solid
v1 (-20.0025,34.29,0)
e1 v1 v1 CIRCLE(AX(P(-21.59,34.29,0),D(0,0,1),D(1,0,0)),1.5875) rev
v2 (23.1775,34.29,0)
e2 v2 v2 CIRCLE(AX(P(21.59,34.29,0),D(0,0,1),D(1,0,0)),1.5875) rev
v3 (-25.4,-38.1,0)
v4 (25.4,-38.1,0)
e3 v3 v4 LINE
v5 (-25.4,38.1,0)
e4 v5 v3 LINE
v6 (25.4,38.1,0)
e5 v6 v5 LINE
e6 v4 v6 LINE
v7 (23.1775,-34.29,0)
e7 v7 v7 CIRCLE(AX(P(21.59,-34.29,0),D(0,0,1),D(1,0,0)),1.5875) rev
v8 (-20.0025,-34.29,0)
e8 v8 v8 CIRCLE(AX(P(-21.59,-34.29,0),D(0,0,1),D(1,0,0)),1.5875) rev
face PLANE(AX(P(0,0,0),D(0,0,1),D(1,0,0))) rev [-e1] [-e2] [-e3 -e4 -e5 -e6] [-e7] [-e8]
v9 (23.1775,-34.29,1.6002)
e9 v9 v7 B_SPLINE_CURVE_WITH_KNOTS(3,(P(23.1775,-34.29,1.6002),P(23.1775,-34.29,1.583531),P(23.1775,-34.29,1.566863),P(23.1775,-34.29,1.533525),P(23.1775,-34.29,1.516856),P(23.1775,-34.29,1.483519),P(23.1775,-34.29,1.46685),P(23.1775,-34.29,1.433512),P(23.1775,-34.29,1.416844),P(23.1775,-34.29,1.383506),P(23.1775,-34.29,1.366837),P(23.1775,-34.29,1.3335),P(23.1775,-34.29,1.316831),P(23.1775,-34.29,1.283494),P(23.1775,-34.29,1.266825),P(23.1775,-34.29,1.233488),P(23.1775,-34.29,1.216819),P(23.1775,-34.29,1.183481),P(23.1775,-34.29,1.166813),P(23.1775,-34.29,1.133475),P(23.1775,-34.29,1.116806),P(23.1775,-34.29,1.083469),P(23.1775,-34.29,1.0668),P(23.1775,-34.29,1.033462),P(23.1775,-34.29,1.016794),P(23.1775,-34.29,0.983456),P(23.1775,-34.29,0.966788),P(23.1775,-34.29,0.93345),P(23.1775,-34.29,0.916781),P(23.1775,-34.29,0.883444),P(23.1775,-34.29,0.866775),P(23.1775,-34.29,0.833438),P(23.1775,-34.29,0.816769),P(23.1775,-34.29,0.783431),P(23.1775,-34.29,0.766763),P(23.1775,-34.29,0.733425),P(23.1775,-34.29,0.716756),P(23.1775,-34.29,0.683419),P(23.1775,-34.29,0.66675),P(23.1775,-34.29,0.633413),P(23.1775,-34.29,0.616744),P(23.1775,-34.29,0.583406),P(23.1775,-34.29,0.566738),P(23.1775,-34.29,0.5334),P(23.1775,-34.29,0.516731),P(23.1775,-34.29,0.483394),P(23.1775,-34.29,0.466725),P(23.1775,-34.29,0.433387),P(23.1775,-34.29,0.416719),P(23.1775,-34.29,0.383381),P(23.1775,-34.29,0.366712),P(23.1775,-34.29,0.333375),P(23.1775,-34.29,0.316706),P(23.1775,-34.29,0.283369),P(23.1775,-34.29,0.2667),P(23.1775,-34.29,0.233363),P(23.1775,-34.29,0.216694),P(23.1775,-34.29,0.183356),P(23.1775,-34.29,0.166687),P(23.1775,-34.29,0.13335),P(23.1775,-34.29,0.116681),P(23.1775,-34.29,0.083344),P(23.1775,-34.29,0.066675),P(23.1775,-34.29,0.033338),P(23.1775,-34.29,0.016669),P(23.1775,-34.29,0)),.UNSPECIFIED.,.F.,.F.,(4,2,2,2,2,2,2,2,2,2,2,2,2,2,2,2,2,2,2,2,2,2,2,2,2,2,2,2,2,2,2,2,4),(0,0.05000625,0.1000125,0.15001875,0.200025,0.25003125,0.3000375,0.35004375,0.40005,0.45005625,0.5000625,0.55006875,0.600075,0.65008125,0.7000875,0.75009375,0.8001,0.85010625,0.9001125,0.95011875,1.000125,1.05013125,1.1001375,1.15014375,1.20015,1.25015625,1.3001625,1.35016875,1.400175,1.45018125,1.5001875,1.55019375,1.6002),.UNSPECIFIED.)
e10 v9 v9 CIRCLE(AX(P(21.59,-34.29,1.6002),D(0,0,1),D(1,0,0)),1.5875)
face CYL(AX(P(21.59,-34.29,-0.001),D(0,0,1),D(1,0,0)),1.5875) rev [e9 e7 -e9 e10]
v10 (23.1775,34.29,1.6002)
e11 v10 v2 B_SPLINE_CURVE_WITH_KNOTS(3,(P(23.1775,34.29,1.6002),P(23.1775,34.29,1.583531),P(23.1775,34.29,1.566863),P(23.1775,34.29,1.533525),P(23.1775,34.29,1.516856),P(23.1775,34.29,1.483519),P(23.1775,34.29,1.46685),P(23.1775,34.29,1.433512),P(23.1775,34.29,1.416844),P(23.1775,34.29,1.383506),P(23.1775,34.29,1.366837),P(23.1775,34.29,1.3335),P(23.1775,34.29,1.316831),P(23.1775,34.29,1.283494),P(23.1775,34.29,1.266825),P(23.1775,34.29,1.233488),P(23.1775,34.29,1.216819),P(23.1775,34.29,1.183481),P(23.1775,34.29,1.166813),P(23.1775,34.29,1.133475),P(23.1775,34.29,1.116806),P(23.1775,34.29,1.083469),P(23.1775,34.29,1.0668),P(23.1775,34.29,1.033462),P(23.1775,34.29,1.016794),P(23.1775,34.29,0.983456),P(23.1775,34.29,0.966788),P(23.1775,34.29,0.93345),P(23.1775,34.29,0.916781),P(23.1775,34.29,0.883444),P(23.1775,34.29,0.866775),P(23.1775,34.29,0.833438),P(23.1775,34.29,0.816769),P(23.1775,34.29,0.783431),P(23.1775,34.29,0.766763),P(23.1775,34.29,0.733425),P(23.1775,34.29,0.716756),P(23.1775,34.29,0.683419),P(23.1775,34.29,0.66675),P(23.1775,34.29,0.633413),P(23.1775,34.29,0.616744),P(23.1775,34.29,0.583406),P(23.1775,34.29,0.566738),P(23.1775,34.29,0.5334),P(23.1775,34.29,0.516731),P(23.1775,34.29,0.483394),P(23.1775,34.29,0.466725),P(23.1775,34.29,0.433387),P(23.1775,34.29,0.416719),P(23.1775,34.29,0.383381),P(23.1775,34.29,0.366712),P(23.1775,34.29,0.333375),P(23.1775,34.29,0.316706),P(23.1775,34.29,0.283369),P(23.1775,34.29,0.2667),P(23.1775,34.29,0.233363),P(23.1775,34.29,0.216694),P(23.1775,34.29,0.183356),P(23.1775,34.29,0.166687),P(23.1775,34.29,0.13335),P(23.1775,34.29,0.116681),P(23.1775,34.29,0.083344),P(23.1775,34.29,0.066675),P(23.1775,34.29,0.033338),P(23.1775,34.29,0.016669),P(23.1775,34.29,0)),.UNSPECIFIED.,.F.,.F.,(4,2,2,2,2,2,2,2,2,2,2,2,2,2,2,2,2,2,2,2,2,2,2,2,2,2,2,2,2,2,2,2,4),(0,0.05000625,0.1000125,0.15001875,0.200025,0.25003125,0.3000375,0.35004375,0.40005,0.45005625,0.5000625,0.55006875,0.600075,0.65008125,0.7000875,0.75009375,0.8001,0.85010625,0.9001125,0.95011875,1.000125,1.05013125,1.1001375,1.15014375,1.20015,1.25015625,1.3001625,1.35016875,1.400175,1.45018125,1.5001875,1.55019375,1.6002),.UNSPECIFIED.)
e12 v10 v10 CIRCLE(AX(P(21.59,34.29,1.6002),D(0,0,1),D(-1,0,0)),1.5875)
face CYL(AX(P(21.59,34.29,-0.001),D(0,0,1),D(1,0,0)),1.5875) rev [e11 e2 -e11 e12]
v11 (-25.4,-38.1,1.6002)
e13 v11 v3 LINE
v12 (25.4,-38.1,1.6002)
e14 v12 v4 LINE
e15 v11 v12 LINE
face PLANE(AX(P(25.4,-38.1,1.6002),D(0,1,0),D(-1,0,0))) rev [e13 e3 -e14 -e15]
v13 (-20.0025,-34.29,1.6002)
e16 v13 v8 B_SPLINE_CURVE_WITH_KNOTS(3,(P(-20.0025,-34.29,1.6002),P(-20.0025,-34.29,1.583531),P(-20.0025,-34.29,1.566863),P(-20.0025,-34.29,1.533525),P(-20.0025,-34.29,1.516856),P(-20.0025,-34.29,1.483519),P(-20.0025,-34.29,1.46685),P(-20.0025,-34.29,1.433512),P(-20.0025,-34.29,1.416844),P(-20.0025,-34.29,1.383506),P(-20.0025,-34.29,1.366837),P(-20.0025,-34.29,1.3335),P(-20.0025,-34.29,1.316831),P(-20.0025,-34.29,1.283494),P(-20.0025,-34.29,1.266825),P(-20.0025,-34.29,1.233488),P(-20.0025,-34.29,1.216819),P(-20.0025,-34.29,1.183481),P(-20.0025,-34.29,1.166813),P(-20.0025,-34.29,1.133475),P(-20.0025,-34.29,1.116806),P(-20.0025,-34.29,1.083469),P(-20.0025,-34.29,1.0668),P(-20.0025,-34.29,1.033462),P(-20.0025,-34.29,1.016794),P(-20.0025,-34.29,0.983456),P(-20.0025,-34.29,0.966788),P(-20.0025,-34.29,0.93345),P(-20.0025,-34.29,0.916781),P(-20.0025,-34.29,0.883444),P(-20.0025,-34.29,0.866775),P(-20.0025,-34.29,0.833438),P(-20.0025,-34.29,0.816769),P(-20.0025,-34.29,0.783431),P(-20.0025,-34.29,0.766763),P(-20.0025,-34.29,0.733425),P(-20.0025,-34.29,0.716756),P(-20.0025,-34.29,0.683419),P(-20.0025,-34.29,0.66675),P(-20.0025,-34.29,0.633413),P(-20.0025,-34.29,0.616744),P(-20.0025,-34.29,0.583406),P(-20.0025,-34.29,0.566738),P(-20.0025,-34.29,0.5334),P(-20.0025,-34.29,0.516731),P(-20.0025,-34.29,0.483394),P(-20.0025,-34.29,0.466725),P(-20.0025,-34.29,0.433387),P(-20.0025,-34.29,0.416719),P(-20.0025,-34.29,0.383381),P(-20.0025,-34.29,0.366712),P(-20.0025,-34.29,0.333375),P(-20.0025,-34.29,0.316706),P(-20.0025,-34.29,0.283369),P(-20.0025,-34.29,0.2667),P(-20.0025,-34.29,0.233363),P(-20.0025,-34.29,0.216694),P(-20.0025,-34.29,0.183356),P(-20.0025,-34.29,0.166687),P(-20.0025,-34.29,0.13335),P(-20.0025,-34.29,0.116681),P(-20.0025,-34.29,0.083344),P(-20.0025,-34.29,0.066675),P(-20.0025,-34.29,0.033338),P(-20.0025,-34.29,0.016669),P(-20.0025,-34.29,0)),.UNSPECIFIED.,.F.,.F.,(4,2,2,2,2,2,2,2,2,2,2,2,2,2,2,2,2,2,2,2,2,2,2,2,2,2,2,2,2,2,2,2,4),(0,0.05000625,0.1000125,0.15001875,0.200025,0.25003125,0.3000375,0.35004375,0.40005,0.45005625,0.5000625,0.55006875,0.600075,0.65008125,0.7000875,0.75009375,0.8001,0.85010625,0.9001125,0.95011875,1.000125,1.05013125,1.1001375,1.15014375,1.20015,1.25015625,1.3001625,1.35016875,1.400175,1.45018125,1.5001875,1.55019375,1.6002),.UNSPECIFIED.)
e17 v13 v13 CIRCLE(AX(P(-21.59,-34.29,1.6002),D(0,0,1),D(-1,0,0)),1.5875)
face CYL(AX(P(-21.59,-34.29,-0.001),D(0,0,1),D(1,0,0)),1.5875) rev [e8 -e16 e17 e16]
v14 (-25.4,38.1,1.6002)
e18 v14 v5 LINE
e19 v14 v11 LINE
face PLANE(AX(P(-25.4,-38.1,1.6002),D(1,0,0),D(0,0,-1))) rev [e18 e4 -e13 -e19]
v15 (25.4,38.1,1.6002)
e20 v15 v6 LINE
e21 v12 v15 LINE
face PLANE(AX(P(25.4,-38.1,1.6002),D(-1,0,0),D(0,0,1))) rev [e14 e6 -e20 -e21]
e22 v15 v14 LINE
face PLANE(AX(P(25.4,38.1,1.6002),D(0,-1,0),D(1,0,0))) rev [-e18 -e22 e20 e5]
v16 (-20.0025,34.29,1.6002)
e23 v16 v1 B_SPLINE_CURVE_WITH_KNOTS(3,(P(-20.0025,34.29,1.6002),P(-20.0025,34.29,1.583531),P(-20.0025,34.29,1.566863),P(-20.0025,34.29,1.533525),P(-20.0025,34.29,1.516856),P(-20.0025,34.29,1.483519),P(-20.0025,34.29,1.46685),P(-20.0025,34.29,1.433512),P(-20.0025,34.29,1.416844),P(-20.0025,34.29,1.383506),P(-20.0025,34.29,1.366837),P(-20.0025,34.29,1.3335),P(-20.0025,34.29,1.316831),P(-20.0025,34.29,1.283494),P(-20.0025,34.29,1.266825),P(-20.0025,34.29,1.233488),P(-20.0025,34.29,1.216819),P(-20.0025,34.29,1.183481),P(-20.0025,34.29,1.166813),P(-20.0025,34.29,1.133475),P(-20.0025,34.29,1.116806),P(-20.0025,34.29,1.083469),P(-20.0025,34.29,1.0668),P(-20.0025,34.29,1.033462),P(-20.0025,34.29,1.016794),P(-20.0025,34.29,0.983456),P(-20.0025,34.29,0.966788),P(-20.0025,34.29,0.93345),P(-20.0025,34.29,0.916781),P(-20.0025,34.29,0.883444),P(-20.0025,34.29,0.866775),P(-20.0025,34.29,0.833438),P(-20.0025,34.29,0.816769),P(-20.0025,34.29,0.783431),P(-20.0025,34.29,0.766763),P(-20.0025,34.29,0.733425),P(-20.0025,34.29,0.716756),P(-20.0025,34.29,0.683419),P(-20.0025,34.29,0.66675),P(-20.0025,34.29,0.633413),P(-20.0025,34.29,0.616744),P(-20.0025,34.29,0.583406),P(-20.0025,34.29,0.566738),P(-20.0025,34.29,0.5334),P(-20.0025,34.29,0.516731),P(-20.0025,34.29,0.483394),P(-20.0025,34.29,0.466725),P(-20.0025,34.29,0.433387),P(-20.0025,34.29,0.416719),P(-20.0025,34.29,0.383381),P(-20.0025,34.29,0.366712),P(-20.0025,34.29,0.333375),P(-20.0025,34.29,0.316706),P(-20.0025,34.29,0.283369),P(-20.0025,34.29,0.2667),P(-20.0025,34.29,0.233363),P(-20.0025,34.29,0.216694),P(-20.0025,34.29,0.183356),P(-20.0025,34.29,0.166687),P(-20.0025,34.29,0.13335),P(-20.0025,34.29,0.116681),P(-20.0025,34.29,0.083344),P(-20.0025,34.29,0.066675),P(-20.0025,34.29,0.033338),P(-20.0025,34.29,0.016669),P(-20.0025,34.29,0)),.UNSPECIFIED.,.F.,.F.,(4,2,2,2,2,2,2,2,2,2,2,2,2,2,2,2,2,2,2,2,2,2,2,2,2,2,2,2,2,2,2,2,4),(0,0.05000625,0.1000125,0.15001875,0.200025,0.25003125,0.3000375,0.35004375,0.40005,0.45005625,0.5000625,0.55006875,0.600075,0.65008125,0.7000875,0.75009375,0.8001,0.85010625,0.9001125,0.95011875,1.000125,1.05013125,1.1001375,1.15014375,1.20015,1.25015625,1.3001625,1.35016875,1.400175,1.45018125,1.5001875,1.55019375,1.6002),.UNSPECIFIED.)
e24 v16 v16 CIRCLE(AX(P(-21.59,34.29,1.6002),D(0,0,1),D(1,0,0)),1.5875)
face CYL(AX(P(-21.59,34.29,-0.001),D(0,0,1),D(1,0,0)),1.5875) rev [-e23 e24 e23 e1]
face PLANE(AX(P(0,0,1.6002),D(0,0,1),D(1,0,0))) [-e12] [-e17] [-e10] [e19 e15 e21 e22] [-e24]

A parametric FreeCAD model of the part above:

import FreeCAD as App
import Part
import Sketcher
from FreeCAD import Vector
Q = App.Units.Quantity


def add_polygon(sketch, points):
    """Adds a closed chain of lines whose ends are joined by coincident constraints."""
    first, n = sketch.GeometryCount, len(points)
    for a, b in zip(points, points[1:] + points[:1]):
        sketch.addGeometry(Part.LineSegment(App.Vector(*a, 0), App.Vector(*b, 0)), False)
    for i in range(n):
        sketch.addConstraint(Sketcher.Constraint("Coincident", first + i, 2, first + (i + 1) % n, 1))

doc = App.newDocument("Part")
body = doc.addObject("PartDesign::Body", "Body")

sketch1 = body.newObject("Sketcher::SketchObject", "Sketch")
sketch1.AttachmentSupport = (doc.getObject("XY_Plane"), [""])
sketch1.MapMode = "FlatFace"
add_polygon(sketch1, [(-25.4, 38.1), (-25.4, -38.1), (25.4, -38.1), (25.4, 38.1)])
sketch1.addConstraint(Sketcher.Constraint("Vertical", 0))
sketch1.addConstraint(Sketcher.Constraint("Horizontal", 1))
sketch1.addConstraint(Sketcher.Constraint("Vertical", 2))
sketch1.addConstraint(Sketcher.Constraint("Horizontal", 3))
sketch1.addConstraint(Sketcher.Constraint("Symmetric", 0, 2, 2, 2, -1, 1))
sketch1.addConstraint(Sketcher.Constraint("DistanceX", 1, 1, 1, 2, Q("2 in")))
sketch1.addConstraint(Sketcher.Constraint("DistanceY", 0, 2, 0, 1, Q("3 in")))
pad1 = body.newObject("PartDesign::Pad", "Pad")
pad1.Profile = sketch1
pad1.Length = Q("0.063 in")

sketch2 = body.newObject("Sketcher::SketchObject", "Sketch001")
sketch2.AttachmentSupport = (doc.getObject("XY_Plane"), [""])
sketch2.MapMode = "FlatFace"
sketch2.AttachmentOffset = App.Placement(Vector(0, 0, 0.063 * 25.4), App.Rotation())
sketch2.addGeometry(Part.Circle(Vector(-21.59, 34.29, 0), Vector(0, 0, 1), 1.5875), False)
sketch2.addConstraint(Sketcher.Constraint("Diameter", 0, Q("0.125 in")))
sketch2.addConstraint(Sketcher.Constraint("DistanceX", 0, 3, -1, 1, Q("0.85 in")))
sketch2.addConstraint(Sketcher.Constraint("DistanceY", -1, 1, 0, 3, Q("1.35 in")))
pocket1 = body.newObject("PartDesign::Pocket", "Pocket")
pocket1.Profile = sketch2
pocket1.Type = "UpToFirst"

sketch3 = body.newObject("Sketcher::SketchObject", "Sketch002")
sketch3.AttachmentSupport = (doc.getObject("XY_Plane"), [""])
sketch3.MapMode = "FlatFace"
sketch3.AttachmentOffset = App.Placement(Vector(0, 0, 0.063 * 25.4), App.Rotation())
sketch3.addGeometry(Part.Circle(Vector(21.59, 34.29, 0), Vector(0, 0, 1), 1.5875), False)
sketch3.addConstraint(Sketcher.Constraint("Diameter", 0, Q("0.125 in")))
sketch3.addConstraint(Sketcher.Constraint("DistanceX", -1, 1, 0, 3, Q("0.85 in")))
sketch3.addConstraint(Sketcher.Constraint("DistanceY", -1, 1, 0, 3, Q("1.35 in")))
pocket2 = body.newObject("PartDesign::Pocket", "Pocket001")
pocket2.Profile = sketch3
pocket2.Type = "UpToFirst"

sketch4 = body.newObject("Sketcher::SketchObject", "Sketch003")
sketch4.AttachmentSupport = (doc.getObject("XY_Plane"), [""])
sketch4.MapMode = "FlatFace"
sketch4.AttachmentOffset = App.Placement(Vector(0, 0, 0.063 * 25.4), App.Rotation())
sketch4.addGeometry(Part.Circle(Vector(21.59, -34.29, 0), Vector(0, 0, 1), 1.5875), False)
sketch4.addConstraint(Sketcher.Constraint("Diameter", 0, Q("0.125 in")))
sketch4.addConstraint(Sketcher.Constraint("DistanceX", -1, 1, 0, 3, Q("0.85 in")))
sketch4.addConstraint(Sketcher.Constraint("DistanceY", 0, 3, -1, 1, Q("1.35 in")))
pocket3 = body.newObject("PartDesign::Pocket", "Pocket002")
pocket3.Profile = sketch4
pocket3.Type = "UpToFirst"

sketch5 = body.newObject("Sketcher::SketchObject", "Sketch004")
sketch5.AttachmentSupport = (doc.getObject("XY_Plane"), [""])
sketch5.MapMode = "FlatFace"
sketch5.AttachmentOffset = App.Placement(Vector(0, 0, 0.063 * 25.4), App.Rotation())
sketch5.addGeometry(Part.Circle(Vector(-21.59, -34.29, 0), Vector(0, 0, 1), 1.5875), False)
sketch5.addConstraint(Sketcher.Constraint("Diameter", 0, Q("0.125 in")))
sketch5.addConstraint(Sketcher.Constraint("DistanceX", 0, 3, -1, 1, Q("0.85 in")))
sketch5.addConstraint(Sketcher.Constraint("DistanceY", 0, 3, -1, 1, Q("1.35 in")))
pocket4 = body.newObject("PartDesign::Pocket", "Pocket003")
pocket4.Profile = sketch5
pocket4.Type = "UpToFirst"

doc.recompute()
